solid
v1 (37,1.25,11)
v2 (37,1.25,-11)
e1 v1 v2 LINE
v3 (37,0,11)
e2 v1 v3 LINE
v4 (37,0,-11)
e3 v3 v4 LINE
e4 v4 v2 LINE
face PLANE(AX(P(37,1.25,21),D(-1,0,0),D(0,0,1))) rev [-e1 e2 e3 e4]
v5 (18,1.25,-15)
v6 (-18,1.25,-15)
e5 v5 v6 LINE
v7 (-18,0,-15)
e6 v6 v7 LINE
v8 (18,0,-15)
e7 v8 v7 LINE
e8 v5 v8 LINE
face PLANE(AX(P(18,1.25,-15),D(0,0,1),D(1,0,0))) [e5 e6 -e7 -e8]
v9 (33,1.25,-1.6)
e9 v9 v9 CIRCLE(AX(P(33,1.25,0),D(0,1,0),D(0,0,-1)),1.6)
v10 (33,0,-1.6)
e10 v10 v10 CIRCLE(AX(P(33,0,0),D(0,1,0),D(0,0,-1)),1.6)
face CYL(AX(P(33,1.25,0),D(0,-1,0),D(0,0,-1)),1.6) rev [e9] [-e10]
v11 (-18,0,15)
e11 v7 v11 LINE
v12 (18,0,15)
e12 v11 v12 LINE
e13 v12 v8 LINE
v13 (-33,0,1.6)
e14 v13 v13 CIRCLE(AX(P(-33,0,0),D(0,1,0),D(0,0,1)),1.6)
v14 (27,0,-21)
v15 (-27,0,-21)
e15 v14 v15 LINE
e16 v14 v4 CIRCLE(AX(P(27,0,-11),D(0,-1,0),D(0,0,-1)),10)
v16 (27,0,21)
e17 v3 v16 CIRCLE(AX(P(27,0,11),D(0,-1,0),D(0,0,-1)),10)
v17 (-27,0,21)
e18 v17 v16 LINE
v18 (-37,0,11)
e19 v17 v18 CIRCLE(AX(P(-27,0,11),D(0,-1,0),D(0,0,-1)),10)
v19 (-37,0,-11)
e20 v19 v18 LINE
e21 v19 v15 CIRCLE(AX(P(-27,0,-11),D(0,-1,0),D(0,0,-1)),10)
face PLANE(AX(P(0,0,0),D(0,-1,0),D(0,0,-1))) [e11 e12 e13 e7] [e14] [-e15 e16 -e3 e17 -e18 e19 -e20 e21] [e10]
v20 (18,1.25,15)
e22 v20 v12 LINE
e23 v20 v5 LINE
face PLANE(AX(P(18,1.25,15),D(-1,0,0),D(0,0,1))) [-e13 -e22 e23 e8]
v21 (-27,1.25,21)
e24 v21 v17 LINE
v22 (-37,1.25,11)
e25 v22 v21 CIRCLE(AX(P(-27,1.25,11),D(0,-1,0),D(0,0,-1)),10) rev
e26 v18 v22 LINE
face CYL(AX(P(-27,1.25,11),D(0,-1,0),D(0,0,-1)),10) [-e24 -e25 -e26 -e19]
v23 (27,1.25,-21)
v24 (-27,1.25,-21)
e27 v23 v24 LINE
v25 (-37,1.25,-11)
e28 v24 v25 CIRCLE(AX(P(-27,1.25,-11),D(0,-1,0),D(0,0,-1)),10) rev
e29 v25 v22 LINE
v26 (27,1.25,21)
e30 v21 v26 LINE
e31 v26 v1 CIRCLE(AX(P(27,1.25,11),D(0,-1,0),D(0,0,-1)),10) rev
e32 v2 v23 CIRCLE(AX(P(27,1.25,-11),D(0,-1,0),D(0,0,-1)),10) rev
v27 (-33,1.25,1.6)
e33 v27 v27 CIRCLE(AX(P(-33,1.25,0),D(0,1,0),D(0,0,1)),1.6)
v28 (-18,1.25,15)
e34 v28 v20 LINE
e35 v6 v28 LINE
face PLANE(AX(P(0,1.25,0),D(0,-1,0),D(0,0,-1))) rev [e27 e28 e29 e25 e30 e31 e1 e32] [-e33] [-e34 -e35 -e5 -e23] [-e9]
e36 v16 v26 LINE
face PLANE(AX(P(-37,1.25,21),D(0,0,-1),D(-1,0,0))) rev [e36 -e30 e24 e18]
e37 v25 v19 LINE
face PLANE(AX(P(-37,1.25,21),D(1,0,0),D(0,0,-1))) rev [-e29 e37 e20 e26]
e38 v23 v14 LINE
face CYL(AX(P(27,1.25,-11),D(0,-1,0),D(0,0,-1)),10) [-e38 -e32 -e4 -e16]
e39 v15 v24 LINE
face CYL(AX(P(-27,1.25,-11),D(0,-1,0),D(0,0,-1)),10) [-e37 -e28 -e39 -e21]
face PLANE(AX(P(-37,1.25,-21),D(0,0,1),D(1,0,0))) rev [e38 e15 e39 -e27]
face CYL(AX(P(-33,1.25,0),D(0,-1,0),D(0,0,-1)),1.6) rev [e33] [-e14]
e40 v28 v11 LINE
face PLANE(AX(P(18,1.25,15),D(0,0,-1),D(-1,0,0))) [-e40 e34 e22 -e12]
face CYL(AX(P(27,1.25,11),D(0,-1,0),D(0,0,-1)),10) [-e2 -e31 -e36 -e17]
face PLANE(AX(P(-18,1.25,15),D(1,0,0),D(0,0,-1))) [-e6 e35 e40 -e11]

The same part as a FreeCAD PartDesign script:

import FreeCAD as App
import Part
import Sketcher
Q = App.Units.Quantity


def edges_at(feature, points):
    """Names of the edges that pass closest to the given points."""
    edges = feature.Shape.Edges
    near = lambda p: min(range(len(edges)), key=lambda i: edges[i].distToShape(Part.Vertex(*p))[0])
    return sorted({f"Edge{near(p) + 1}" for p in points})

doc = App.newDocument("Part")
body = doc.addObject("PartDesign::Body", "Body")

# Sketch on XZ plane
sketch1 = body.newObject("Sketcher::SketchObject", "Sketch")
sketch1.AttachmentSupport = (doc.getObject("XZ_Plane"), [""])
sketch1.MapMode = "FlatFace"
sketch1.addGeometry([
    Part.LineSegment(App.Vector(-37, -21, 0), App.Vector(-37, 21, 0)),  # 0
    Part.LineSegment(App.Vector(-37, 21, 0), App.Vector(37, 21, 0)),  # 1
    Part.LineSegment(App.Vector(37, 21, 0), App.Vector(37, -21, 0)),  # 2
    Part.LineSegment(App.Vector(37, -21, 0), App.Vector(-37, -21, 0)),  # 3
    Part.Circle(App.Vector(-33, 0, 0), App.Vector(0, 0, 1), 1.6),  # 4
    Part.LineSegment(App.Vector(18, 15, 0), App.Vector(-18, 15, 0)),  # 5
    Part.LineSegment(App.Vector(-18, 15, 0), App.Vector(-18, -15, 0)),  # 6
    Part.LineSegment(App.Vector(-18, -15, 0), App.Vector(18, -15, 0)),  # 7
    Part.LineSegment(App.Vector(18, -15, 0), App.Vector(18, 15, 0)),  # 8
    Part.Circle(App.Vector(33, 0, 0), App.Vector(0, 0, 1), 1.6),  # 9
], False)
sketch1.addConstraint([
    Sketcher.Constraint("Coincident", 0, 2, 1, 1),
    Sketcher.Constraint("Coincident", 1, 2, 2, 1),
    Sketcher.Constraint("Coincident", 2, 2, 3, 1),
    Sketcher.Constraint("Coincident", 3, 2, 0, 1),
    Sketcher.Constraint("Coincident", 5, 2, 6, 1),
    Sketcher.Constraint("Coincident", 6, 2, 7, 1),
    Sketcher.Constraint("Coincident", 7, 2, 8, 1),
    Sketcher.Constraint("Coincident", 8, 2, 5, 1),
    Sketcher.Constraint("Vertical", 0),
    Sketcher.Constraint("Horizontal", 1),
    Sketcher.Constraint("Vertical", 2),
    Sketcher.Constraint("Horizontal", 3),
    Sketcher.Constraint("Horizontal", 5),
    Sketcher.Constraint("Vertical", 6),
    Sketcher.Constraint("Horizontal", 7),
    Sketcher.Constraint("Vertical", 8),
    Sketcher.Constraint("Equal", 4, 9),
    Sketcher.Constraint("Symmetric", 4, 3, 9, 3, -1, 1),
    Sketcher.Constraint("Symmetric", 0, 2, 2, 2, -1, 1),
    Sketcher.Constraint("Symmetric", 5, 2, 7, 2, -1, 1),
    Sketcher.Constraint("PointOnObject", 4, 3, -1),
    Sketcher.Constraint("Diameter", 4, Q("3.2 mm")),
    Sketcher.Constraint("DistanceX", 1, 1, 1, 2, Q("74 mm")),
    Sketcher.Constraint("DistanceX", 5, 2, 5, 1, Q("36 mm")),
    Sketcher.Constraint("DistanceY", 0, 1, 0, 2, Q("42 mm")),
    Sketcher.Constraint("DistanceY", 6, 2, 6, 1, Q("30 mm")),
    Sketcher.Constraint("DistanceX", 4, 3, -1, 1, Q("33 mm")),
])
pad1 = body.newObject("PartDesign::Pad", "Pad")
pad1.Profile = sketch1
pad1.Length = 1.25
pad1.Reversed = True
doc.recompute()

fillet = body.newObject("PartDesign::Fillet", "Fillet")
fillet.Base = (pad1, edges_at(pad1, [
    (37, 0.625, 21),
    (-37, 0.625, 21),
    (-37, 0.625, -21),
    (37, 0.625, -21),
]))
fillet.Radius = 10

doc.recompute()
